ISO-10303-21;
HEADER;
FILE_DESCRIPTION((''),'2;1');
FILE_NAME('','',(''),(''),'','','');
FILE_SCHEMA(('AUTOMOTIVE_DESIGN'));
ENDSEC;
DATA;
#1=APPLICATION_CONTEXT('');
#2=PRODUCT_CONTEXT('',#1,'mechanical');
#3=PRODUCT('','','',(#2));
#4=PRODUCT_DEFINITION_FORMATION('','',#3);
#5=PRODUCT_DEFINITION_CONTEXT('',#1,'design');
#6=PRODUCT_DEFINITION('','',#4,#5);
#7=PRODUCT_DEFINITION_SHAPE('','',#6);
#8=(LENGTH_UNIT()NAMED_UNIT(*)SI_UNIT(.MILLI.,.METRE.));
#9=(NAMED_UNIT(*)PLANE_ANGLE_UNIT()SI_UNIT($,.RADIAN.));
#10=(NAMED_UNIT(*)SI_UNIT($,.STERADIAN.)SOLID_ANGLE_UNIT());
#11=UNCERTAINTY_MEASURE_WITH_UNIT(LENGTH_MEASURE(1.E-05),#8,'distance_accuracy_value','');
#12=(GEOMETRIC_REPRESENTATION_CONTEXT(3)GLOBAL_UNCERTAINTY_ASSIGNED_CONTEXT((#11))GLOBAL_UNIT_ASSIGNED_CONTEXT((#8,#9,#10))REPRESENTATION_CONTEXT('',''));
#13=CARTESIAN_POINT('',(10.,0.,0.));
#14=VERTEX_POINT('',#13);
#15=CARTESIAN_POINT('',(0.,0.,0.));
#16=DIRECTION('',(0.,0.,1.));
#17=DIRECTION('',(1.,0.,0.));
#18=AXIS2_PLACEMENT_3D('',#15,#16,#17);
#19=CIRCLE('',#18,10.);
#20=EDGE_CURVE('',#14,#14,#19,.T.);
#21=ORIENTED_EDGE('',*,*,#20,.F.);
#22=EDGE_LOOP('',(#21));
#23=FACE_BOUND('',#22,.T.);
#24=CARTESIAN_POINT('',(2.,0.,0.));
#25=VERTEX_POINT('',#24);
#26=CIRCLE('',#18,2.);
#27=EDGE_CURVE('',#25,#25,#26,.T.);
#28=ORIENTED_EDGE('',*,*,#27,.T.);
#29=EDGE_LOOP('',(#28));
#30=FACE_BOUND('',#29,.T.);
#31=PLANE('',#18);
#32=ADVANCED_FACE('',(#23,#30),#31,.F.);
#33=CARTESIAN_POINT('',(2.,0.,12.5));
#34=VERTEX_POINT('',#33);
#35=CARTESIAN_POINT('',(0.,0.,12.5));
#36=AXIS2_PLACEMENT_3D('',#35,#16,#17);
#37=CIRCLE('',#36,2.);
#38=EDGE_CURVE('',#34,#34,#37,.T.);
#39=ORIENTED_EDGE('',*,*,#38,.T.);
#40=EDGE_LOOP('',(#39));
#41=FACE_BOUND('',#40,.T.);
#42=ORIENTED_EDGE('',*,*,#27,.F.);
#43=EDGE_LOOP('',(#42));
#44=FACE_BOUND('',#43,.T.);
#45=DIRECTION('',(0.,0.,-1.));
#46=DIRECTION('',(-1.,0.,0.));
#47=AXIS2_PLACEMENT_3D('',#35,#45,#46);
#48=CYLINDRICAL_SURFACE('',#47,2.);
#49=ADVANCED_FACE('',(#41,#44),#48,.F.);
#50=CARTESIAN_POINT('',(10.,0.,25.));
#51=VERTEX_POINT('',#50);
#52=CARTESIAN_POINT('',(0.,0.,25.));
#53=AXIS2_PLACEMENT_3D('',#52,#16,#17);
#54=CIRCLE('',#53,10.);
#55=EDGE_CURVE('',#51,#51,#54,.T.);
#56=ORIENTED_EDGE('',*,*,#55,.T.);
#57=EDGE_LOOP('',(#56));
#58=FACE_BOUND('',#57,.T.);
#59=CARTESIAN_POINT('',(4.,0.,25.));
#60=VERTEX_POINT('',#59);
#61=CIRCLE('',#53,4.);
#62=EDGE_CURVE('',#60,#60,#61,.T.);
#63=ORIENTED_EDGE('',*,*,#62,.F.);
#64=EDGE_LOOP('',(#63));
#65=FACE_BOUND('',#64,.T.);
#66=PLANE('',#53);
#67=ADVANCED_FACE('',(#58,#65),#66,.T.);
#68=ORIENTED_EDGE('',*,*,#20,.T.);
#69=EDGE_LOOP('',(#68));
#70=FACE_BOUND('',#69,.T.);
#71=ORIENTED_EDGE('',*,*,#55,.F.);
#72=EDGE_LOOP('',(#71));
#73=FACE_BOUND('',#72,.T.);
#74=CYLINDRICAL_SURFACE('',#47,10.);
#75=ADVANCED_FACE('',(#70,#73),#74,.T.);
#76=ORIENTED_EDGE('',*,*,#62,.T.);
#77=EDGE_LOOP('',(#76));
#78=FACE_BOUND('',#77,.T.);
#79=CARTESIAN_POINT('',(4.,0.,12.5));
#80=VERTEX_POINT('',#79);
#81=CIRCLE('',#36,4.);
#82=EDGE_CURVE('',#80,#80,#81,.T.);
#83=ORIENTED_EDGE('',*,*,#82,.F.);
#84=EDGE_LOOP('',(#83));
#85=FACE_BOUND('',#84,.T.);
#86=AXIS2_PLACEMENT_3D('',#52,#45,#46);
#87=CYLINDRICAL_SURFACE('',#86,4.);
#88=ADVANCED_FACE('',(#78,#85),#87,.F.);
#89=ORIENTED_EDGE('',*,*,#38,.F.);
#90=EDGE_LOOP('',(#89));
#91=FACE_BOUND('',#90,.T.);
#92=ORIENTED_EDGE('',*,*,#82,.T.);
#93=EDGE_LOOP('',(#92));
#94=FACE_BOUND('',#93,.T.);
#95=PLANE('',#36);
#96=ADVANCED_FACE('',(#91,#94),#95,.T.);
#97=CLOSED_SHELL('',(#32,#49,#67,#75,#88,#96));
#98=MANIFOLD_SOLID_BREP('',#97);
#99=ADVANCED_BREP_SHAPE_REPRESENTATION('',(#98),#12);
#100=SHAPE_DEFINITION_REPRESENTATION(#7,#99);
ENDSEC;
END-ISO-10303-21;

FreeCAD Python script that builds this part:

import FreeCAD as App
import Part
import Sketcher

V = App.Vector
Q = App.Units.Quantity

doc = App.newDocument("Part")
body = doc.addObject("PartDesign::Body", "Body")

# Sketch on XY plane
sketch1 = body.newObject("Sketcher::SketchObject", "Sketch")
sketch1.AttachmentSupport = (doc.getObject("XY_Plane"), [""])
sketch1.MapMode = "FlatFace"
sketch1.addGeometry([
    Part.Circle(V(0, 0, 0), V(0, 0, 1), 10),
    Part.Circle(V(0, 0, 0), V(0, 0, 1), 2),
], False)
sketch1.addConstraint([
    Sketcher.Constraint("Coincident", 0, 3, -1, 1),
    Sketcher.Constraint("Coincident", 1, 3, -1, 1),
    Sketcher.Constraint("Diameter", 0, Q("20 mm")),
    Sketcher.Constraint("Diameter", 1, Q("4 mm")),
])
pad1 = body.newObject("PartDesign::Pad", "Pad")
pad1.Profile = sketch1
pad1.Length = 12.5

# Sketch on XY plane
sketch2 = body.newObject("Sketcher::SketchObject", "Sketch001")
sketch2.AttachmentSupport = (doc.getObject("XY_Plane"), [""])
sketch2.MapMode = "FlatFace"
sketch2.AttachmentOffset = App.Placement(V(0, 0, 12.5), App.Rotation())
sketch2.addGeometry([
    Part.Circle(V(0, 0, 0), V(0, 0, 1), 10),
    Part.Circle(V(0, 0, 0), V(0, 0, 1), 4),
], False)
sketch2.addConstraint([
    Sketcher.Constraint("Coincident", 0, 3, -1, 1),
    Sketcher.Constraint("Coincident", 1, 3, -1, 1),
    Sketcher.Constraint("Diameter", 0, Q("20 mm")),
    Sketcher.Constraint("Diameter", 1, Q("8 mm")),
])
pad2 = body.newObject("PartDesign::Pad", "Pad001")
pad2.Profile = sketch2
pad2.Length = 12.5

doc.recompute()
